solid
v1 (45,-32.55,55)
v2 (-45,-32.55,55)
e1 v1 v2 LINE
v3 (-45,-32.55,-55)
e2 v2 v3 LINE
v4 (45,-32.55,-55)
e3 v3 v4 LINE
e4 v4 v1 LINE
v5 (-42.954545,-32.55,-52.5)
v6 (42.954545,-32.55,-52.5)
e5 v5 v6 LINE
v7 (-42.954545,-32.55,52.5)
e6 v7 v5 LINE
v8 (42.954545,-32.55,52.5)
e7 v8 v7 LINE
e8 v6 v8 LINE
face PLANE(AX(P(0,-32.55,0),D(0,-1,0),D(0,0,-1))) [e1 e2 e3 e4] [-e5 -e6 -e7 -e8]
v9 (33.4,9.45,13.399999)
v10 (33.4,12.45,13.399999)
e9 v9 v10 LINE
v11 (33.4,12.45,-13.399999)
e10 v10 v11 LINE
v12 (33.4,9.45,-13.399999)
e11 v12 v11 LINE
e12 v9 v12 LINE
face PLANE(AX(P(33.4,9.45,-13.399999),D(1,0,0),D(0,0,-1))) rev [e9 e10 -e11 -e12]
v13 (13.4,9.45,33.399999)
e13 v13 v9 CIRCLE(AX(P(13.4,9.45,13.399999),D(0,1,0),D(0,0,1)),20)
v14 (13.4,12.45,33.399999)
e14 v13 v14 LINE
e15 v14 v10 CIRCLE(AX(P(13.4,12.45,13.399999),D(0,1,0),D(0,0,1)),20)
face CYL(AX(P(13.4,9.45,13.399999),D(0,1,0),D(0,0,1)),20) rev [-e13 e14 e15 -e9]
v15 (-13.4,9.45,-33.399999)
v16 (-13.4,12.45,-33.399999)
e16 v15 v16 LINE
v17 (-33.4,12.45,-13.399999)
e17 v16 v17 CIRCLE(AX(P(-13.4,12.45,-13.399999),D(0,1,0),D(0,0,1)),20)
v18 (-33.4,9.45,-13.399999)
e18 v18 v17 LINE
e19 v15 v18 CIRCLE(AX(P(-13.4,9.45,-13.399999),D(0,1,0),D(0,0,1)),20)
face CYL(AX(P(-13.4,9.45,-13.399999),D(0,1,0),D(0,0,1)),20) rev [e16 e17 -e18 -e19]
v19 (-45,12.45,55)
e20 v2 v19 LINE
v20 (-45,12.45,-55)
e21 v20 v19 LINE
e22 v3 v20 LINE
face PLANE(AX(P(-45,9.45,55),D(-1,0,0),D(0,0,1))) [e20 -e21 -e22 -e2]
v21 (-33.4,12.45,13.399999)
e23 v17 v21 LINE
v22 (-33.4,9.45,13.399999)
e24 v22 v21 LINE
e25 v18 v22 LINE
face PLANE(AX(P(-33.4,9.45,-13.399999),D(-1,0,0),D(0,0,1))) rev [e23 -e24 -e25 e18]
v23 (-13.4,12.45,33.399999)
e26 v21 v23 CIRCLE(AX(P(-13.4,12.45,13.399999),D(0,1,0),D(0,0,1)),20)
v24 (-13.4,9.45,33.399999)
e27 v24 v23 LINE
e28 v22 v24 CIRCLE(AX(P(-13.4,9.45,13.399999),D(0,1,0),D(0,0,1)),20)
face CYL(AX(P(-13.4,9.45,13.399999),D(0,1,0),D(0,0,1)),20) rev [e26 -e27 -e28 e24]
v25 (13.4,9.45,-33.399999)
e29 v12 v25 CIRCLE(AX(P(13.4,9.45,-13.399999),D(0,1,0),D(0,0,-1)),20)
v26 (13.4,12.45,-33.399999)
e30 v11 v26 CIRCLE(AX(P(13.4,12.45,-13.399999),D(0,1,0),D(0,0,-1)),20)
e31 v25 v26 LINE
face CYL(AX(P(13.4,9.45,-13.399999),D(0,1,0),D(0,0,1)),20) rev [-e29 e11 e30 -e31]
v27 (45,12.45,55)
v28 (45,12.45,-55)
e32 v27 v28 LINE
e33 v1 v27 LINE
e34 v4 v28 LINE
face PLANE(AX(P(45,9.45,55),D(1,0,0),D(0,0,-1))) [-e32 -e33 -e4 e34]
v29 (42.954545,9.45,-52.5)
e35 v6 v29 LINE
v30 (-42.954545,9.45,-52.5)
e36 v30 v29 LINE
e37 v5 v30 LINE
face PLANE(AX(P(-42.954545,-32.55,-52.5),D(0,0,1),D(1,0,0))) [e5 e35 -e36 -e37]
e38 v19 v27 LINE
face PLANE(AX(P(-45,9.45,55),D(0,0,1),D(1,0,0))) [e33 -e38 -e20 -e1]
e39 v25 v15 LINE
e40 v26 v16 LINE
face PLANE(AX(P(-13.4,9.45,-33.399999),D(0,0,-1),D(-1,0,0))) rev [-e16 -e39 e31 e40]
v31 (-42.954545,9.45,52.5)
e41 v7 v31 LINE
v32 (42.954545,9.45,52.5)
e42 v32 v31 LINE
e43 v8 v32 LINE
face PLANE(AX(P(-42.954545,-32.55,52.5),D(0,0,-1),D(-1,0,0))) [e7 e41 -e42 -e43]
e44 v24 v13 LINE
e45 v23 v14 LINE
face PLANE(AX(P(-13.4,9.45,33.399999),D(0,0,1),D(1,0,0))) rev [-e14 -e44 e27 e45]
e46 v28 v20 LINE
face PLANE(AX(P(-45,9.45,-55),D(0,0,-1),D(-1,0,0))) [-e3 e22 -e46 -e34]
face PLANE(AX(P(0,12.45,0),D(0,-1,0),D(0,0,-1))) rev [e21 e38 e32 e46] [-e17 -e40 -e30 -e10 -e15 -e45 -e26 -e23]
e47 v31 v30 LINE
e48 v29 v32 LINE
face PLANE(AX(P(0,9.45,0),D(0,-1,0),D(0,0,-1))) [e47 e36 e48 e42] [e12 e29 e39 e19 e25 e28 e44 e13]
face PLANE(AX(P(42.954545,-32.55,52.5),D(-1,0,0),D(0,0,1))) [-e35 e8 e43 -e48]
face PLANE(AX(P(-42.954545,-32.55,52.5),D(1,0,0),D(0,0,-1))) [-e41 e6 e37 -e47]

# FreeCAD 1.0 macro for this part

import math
import FreeCAD as App
import Part
import Sketcher
Q = App.Units.Quantity

doc = App.newDocument("Part")
body = doc.addObject("PartDesign::Body", "Body")

sketch1 = doc.addObject("Sketcher::SketchObject", "Sketch")
body.addObject(sketch1)
sketch1.AttachmentSupport = (doc.XZ_Plane, [""])
sketch1.MapMode = "FlatFace"
sketch1.AttachmentOffset = App.Placement(App.Vector(0, 0, -12.45), App.Rotation())
sketch1.addGeometry([
    Part.LineSegment(App.Vector(-45, -55, 0), App.Vector(-45, 55, 0)),
    Part.LineSegment(App.Vector(-45, 55, 0), App.Vector(45, 55, 0)),
    Part.LineSegment(App.Vector(45, 55, 0), App.Vector(45, -55, 0)),
    Part.LineSegment(App.Vector(45, -55, 0), App.Vector(-45, -55, 0)),
], False)
sketch1.addConstraint([
    Sketcher.Constraint("Coincident", 0, 2, 1, 1),
    Sketcher.Constraint("Coincident", 1, 2, 2, 1),
    Sketcher.Constraint("Coincident", 2, 2, 3, 1),
    Sketcher.Constraint("Coincident", 3, 2, 0, 1),
    Sketcher.Constraint("Vertical", 0),
    Sketcher.Constraint("Horizontal", 1),
    Sketcher.Constraint("Vertical", 2),
    Sketcher.Constraint("Horizontal", 3),
    Sketcher.Constraint("Symmetric", 0, 2, 2, 2, -1, 1),
    Sketcher.Constraint("DistanceX", 1, 1, 1, 2, Q("90 mm")),
    Sketcher.Constraint("DistanceY", 0, 1, 0, 2, Q("110 mm")),
])
pad1 = doc.addObject("PartDesign::Pad", "Pad")
body.addObject(pad1)
pad1.Profile = sketch1
pad1.Length = 3

sketch2 = doc.addObject("Sketcher::SketchObject", "Sketch001")
body.addObject(sketch2)
sketch2.AttachmentSupport = (doc.XZ_Plane, [""])
sketch2.MapMode = "FlatFace"
sketch2.AttachmentOffset = App.Placement(App.Vector(0, 0, -12.45), App.Rotation())
sketch2.addGeometry([
    Part.LineSegment(App.Vector(13, -33, 0), App.Vector(-13, -33, 0)),
    Part.ArcOfCircle(Part.Circle(App.Vector(-13, -13, 0), App.Vector(0, 0, 1), 20), math.radians(-180), math.radians(-90)),
    Part.LineSegment(App.Vector(-33, -13, 0), App.Vector(-33, 13, 0)),
    Part.ArcOfCircle(Part.Circle(App.Vector(-13, 13, 0), App.Vector(0, 0, 1), 20), math.radians(90), math.radians(180)),
    Part.LineSegment(App.Vector(-13, 33, 0), App.Vector(13, 33, 0)),
    Part.ArcOfCircle(Part.Circle(App.Vector(13, 13, 0), App.Vector(0, 0, 1), 20), math.radians(0), math.radians(90)),
    Part.LineSegment(App.Vector(33, 13, 0), App.Vector(33, -13, 0)),
    Part.ArcOfCircle(Part.Circle(App.Vector(13, -13, 0), App.Vector(0, 0, 1), 20), math.radians(-90), math.radians(0)),
], False)
sketch2.addConstraint([
    Sketcher.Constraint("Tangent", 0, 2, 1, 2),
    Sketcher.Constraint("Tangent", 1, 1, 2, 1),
    Sketcher.Constraint("Tangent", 2, 2, 3, 2),
    Sketcher.Constraint("Tangent", 3, 1, 4, 1),
    Sketcher.Constraint("Tangent", 4, 2, 5, 2),
    Sketcher.Constraint("Tangent", 5, 1, 6, 1),
    Sketcher.Constraint("Tangent", 6, 2, 7, 2),
    Sketcher.Constraint("Tangent", 7, 1, 0, 1),
    Sketcher.Constraint("Horizontal", 0),
    Sketcher.Constraint("Vertical", 2),
    Sketcher.Constraint("Horizontal", 4),
    Sketcher.Constraint("Vertical", 6),
    Sketcher.Constraint("Equal", 1, 3),
    Sketcher.Constraint("Equal", 3, 5),
    Sketcher.Constraint("Equal", 5, 7),
    Sketcher.Constraint("Symmetric", 1, 3, 5, 3, -1, 1),
    Sketcher.Constraint("Equal", 4, 2),
    Sketcher.Constraint("Radius", 1, Q("20 mm")),
    Sketcher.Constraint("DistanceX", 0, 2, 0, 1, Q("26.8 mm")),
])
pocket1 = doc.addObject("PartDesign::Pocket", "Pocket")
body.addObject(pocket1)
pocket1.Profile = sketch2
pocket1.Type = "ThroughAll"
pocket1.Reversed = True

sketch3 = doc.addObject("Sketcher::SketchObject", "Sketch002")
body.addObject(sketch3)
sketch3.AttachmentSupport = (doc.XZ_Plane, [""])
sketch3.MapMode = "FlatFace"
sketch3.AttachmentOffset = App.Placement(App.Vector(0, 0, -9.45), App.Rotation())
sketch3.addGeometry([
    Part.LineSegment(App.Vector(-45, 55, 0), App.Vector(-45, -55, 0)),
    Part.LineSegment(App.Vector(-45, -55, 0), App.Vector(45, -55, 0)),
    Part.LineSegment(App.Vector(45, -55, 0), App.Vector(45, 55, 0)),
    Part.LineSegment(App.Vector(45, 55, 0), App.Vector(-45, 55, 0)),
    Part.LineSegment(App.Vector(43, -52, 0), App.Vector(-43, -52, 0)),
    Part.LineSegment(App.Vector(-43, -52, 0), App.Vector(-43, 52, 0)),
    Part.LineSegment(App.Vector(-43, 52, 0), App.Vector(43, 52, 0)),
    Part.LineSegment(App.Vector(43, 52, 0), App.Vector(43, -52, 0)),
], False)
sketch3.addConstraint([
    Sketcher.Constraint("Coincident", 0, 2, 1, 1),
    Sketcher.Constraint("Coincident", 1, 2, 2, 1),
    Sketcher.Constraint("Coincident", 2, 2, 3, 1),
    Sketcher.Constraint("Coincident", 3, 2, 0, 1),
    Sketcher.Constraint("Coincident", 4, 2, 5, 1),
    Sketcher.Constraint("Coincident", 5, 2, 6, 1),
    Sketcher.Constraint("Coincident", 6, 2, 7, 1),
    Sketcher.Constraint("Coincident", 7, 2, 4, 1),
    Sketcher.Constraint("Vertical", 0),
    Sketcher.Constraint("Horizontal", 1),
    Sketcher.Constraint("Vertical", 2),
    Sketcher.Constraint("Horizontal", 3),
    Sketcher.Constraint("Horizontal", 4),
    Sketcher.Constraint("Vertical", 5),
    Sketcher.Constraint("Horizontal", 6),
    Sketcher.Constraint("Vertical", 7),
    Sketcher.Constraint("Symmetric", 0, 2, 2, 2, -1, 1),
    Sketcher.Constraint("Symmetric", 4, 2, 6, 2, -1, 1),
    Sketcher.Constraint("DistanceX", 1, 1, 1, 2, Q("90 mm")),
    Sketcher.Constraint("DistanceY", 0, 2, 0, 1, Q("110 mm")),
    Sketcher.Constraint("DistanceY", 5, 1, 5, 2, Q("105 mm")),
    Sketcher.Constraint("DistanceX", 4, 2, 4, 1, Q("85.909091 mm")),
])
pad2 = doc.addObject("PartDesign::Pad", "Pad001")
body.addObject(pad2)
pad2.Profile = sketch3
pad2.Length = 42

doc.recompute()
